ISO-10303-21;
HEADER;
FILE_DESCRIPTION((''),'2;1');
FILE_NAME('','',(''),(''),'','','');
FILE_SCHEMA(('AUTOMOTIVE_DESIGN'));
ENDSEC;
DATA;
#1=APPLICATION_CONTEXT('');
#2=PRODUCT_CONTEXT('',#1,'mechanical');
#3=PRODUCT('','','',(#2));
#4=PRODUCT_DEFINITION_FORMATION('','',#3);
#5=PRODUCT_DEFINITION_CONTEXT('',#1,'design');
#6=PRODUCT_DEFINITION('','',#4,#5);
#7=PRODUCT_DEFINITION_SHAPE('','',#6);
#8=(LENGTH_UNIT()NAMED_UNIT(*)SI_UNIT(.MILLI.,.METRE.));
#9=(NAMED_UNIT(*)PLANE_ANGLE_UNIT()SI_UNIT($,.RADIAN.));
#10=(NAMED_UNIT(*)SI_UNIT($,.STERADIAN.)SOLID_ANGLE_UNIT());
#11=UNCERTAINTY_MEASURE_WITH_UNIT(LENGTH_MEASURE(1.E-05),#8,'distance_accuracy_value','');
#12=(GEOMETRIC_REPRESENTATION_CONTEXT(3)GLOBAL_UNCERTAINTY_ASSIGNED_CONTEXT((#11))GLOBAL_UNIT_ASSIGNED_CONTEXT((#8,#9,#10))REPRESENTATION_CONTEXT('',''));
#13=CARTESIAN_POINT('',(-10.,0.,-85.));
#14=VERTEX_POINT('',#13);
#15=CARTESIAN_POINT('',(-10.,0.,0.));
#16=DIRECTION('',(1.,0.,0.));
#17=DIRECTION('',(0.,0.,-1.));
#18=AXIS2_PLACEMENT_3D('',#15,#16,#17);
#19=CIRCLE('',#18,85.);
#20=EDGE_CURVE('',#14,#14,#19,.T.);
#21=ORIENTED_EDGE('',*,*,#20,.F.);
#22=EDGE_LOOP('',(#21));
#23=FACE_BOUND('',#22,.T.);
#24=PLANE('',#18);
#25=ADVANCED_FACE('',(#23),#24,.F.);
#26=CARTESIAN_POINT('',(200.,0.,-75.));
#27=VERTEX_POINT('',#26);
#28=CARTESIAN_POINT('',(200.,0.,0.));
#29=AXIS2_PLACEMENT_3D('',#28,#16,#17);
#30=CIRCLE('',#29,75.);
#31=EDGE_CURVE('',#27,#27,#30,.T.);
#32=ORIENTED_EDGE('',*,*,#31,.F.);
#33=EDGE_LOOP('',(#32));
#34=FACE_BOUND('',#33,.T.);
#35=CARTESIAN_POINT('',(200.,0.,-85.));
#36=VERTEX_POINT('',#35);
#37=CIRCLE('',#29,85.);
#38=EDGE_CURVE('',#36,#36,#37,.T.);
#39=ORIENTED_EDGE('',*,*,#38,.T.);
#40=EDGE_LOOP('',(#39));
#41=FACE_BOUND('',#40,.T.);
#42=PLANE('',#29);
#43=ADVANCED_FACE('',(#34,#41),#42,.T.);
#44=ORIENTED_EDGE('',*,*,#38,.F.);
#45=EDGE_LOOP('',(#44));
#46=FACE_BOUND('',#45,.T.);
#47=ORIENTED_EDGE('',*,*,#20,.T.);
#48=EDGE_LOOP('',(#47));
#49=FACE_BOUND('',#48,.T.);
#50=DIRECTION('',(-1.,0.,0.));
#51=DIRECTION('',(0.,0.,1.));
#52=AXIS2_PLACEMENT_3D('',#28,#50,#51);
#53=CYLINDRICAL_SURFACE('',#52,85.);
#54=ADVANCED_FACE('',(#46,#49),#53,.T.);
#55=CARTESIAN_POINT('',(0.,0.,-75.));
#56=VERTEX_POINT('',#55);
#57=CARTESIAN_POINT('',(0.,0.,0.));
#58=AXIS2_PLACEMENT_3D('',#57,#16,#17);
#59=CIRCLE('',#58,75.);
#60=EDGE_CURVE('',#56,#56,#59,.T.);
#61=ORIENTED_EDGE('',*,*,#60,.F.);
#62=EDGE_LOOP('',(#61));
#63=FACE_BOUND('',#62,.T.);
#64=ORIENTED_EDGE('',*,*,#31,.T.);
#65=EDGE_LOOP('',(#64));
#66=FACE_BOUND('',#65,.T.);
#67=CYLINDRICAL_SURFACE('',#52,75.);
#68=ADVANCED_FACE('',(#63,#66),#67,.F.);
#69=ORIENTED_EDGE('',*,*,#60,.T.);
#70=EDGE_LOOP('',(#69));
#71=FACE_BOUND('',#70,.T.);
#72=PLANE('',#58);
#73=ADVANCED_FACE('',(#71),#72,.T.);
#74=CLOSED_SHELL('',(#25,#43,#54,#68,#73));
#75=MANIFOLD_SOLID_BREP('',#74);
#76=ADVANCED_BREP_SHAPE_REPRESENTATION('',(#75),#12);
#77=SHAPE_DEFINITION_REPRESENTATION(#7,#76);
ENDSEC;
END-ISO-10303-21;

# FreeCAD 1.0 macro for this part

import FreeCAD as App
import Part
import Sketcher
Q = App.Units.Quantity


def faces_at(feature, points):
    """Names of the faces that lie closest to the given points."""
    faces = feature.Shape.Faces
    near = lambda p: min(range(len(faces)), key=lambda i: faces[i].distToShape(Part.Vertex(*p))[0])
    return sorted({f"Face{near(p) + 1}" for p in points})

doc = App.newDocument("Part")
params = doc.addObject("Spreadsheet::Sheet", "Params")
for row, (alias, value) in enumerate([
    ("sketch1_diameter", "150 mm"),
    ("pad1_length", "200 mm"),
    ("thickness_wall", "10 mm"),
], start=1):
    params.set(f"A{row}", alias)
    params.set(f"B{row}", "=" + value)
    params.setAlias(f"B{row}", alias)

body = doc.addObject("PartDesign::Body", "Body")

# Sketch on YZ plane
sketch1 = doc.addObject("Sketcher::SketchObject", "Sketch")
body.addObject(sketch1)
sketch1.AttachmentSupport = (doc.YZ_Plane, [""])
sketch1.MapMode = "FlatFace"
sketch1.addGeometry(Part.Circle(App.Vector(0, 0, 0), App.Vector(0, 0, 1), 75), False)
sketch1.addConstraint([
    Sketcher.Constraint("Coincident", 0, 3, -1, 1),
    Sketcher.Constraint("Diameter", 0, Q("150 mm")),
])
sketch1.setExpression("Constraints[1]", "Params.sketch1_diameter")
pad1 = doc.addObject("PartDesign::Pad", "Pad")
body.addObject(pad1)
pad1.Profile = sketch1
pad1.setExpression("Length", "Params.pad1_length")
doc.recompute()

thickness = doc.addObject("PartDesign::Thickness", "Thickness")
body.addObject(thickness)
thickness.Base = (pad1, faces_at(pad1, [(200, 0, 0)]))
thickness.setExpression("Value", "Params.thickness_wall")
thickness.Reversed = False
thickness.Join = "Intersection"

doc.recompute()
